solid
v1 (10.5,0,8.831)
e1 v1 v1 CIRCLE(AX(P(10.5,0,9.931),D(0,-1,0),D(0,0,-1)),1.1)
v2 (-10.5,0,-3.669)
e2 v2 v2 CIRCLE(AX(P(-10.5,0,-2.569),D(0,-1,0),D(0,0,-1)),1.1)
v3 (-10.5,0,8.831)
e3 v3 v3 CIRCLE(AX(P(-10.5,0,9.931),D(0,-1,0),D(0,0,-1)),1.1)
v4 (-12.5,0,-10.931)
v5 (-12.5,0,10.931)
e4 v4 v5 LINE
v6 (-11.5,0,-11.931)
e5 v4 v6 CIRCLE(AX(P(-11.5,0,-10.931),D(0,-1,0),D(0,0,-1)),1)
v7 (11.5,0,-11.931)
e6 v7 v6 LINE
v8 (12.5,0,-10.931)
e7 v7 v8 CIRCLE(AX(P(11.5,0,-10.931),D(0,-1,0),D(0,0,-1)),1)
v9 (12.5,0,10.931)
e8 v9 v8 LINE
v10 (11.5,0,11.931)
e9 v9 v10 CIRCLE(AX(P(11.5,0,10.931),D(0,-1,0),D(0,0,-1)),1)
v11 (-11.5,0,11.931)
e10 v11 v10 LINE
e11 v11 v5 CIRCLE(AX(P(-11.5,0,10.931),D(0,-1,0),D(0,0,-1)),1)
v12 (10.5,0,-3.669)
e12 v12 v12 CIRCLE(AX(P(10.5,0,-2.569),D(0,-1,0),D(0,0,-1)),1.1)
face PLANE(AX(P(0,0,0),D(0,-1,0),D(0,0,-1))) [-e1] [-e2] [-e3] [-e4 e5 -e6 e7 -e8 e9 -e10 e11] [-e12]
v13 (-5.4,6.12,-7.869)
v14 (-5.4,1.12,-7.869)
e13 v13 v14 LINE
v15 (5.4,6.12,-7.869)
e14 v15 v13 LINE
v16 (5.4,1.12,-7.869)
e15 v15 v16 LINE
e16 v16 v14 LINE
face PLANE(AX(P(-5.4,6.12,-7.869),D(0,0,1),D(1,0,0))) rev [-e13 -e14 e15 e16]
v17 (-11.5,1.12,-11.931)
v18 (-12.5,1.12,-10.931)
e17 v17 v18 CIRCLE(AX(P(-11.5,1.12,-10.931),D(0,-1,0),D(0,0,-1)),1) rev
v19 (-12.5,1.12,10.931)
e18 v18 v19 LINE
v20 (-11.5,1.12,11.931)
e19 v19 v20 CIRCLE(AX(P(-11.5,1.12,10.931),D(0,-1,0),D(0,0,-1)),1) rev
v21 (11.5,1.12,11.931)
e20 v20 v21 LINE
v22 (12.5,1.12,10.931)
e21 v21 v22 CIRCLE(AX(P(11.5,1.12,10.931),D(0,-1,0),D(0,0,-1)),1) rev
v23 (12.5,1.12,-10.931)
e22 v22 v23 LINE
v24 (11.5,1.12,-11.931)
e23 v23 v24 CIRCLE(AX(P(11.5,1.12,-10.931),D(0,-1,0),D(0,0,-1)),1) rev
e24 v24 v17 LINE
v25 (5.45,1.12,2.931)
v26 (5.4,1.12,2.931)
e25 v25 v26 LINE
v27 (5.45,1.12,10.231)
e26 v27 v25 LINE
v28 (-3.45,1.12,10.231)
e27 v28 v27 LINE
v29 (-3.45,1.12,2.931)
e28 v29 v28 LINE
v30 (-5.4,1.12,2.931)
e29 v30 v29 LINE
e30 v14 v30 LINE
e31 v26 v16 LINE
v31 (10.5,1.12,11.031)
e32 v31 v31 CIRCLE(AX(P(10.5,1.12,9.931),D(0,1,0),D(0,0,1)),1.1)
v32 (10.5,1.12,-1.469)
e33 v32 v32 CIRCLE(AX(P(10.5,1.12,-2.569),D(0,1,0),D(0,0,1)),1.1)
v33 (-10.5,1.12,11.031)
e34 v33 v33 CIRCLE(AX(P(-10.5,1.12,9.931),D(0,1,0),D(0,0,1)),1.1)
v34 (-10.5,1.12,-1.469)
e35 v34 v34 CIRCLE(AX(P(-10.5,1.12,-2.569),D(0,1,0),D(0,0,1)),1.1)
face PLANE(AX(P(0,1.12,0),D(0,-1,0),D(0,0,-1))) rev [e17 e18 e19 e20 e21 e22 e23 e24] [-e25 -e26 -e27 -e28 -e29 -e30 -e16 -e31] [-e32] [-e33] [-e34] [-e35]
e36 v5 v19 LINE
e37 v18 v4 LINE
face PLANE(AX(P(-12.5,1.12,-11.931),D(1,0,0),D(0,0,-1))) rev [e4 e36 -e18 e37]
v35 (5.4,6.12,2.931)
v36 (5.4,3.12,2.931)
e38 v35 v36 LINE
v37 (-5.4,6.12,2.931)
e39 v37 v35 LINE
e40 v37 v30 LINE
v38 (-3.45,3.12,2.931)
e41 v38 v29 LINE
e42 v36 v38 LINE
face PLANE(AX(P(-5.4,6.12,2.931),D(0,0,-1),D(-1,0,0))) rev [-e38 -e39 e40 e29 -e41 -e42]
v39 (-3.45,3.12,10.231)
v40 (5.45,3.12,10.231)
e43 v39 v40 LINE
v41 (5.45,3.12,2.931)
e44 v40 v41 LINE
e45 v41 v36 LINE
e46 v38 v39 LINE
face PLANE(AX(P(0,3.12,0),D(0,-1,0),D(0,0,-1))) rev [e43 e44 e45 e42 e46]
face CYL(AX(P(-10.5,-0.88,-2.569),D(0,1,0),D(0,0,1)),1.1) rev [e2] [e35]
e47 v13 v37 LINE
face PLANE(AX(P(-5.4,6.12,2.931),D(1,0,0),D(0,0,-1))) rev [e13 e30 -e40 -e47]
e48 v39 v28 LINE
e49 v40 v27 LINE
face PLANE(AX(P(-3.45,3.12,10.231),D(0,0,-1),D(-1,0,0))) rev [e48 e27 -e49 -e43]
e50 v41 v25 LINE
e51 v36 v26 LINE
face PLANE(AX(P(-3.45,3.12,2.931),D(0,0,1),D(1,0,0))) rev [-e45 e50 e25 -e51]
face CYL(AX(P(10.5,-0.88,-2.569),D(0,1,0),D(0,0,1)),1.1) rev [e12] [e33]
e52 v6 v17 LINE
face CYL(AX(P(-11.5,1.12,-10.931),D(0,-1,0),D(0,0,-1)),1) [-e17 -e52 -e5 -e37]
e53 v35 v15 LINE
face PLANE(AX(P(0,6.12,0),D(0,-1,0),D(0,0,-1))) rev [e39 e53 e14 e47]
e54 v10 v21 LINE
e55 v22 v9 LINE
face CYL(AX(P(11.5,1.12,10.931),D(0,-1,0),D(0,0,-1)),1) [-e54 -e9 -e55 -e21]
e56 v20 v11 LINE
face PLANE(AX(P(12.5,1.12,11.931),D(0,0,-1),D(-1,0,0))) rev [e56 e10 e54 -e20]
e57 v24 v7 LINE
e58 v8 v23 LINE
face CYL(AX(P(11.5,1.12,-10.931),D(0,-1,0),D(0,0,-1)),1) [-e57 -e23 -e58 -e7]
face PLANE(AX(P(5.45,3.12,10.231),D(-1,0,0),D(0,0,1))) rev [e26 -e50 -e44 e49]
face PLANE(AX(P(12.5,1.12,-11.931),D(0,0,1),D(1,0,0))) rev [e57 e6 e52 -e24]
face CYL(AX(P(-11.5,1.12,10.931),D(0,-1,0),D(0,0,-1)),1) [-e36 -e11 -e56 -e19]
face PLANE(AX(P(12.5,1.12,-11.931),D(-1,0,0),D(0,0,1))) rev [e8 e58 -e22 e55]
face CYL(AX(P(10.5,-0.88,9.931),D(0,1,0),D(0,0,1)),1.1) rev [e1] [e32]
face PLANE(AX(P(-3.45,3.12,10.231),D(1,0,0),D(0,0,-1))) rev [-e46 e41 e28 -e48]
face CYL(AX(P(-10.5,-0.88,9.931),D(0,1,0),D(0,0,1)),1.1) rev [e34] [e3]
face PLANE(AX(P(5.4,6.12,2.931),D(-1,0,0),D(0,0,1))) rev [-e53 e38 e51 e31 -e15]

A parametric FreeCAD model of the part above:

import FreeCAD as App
import Part
import Sketcher

V = App.Vector
Q = App.Units.Quantity


def edges_at(feature, points):
    """Names of the edges that pass closest to the given points."""
    edges = feature.Shape.Edges
    near = lambda p: min(range(len(edges)), key=lambda i: edges[i].distToShape(Part.Vertex(*p))[0])
    return sorted({f"Edge{near(p) + 1}" for p in points})


def add_polygon(sketch, points):
    """Adds a closed chain of lines whose ends are joined by coincident constraints."""
    first, n = sketch.GeometryCount, len(points)
    for a, b in zip(points, points[1:] + points[:1]):
        sketch.addGeometry(Part.LineSegment(App.Vector(*a, 0), App.Vector(*b, 0)), False)
    for i in range(n):
        sketch.addConstraint(Sketcher.Constraint("Coincident", first + i, 2, first + (i + 1) % n, 1))

doc = App.newDocument("Part")
body = doc.addObject("PartDesign::Body", "Body")

# Sketch on XZ plane
sketch1 = body.newObject("Sketcher::SketchObject", "Sketch")
sketch1.AttachmentSupport = (doc.getObject("XZ_Plane"), [""])
sketch1.MapMode = "FlatFace"
add_polygon(sketch1, [(-12, -12), (-12, 12), (12, 12), (12, -12)])  # lines 0-3
sketch1.addConstraint([
    Sketcher.Constraint("Vertical", 0),
    Sketcher.Constraint("Horizontal", 1),
    Sketcher.Constraint("Vertical", 2),
    Sketcher.Constraint("Horizontal", 3),
    Sketcher.Constraint("Symmetric", 0, 2, 2, 2, -1, 1),
    Sketcher.Constraint("DistanceX", 1, 1, 1, 2, Q("25 mm")),
    Sketcher.Constraint("DistanceY", 0, 1, 0, 2, Q("23.862 mm")),
])
pad1 = body.newObject("PartDesign::Pad", "Pad")
pad1.Profile = sketch1
pad1.Length = 1.12
pad1.Reversed = True
doc.recompute()

fillet = body.newObject("PartDesign::Fillet", "Fillet")
fillet.Base = (pad1, edges_at(pad1, [
    (-12.5, 0.56, -11.931),
    (12.5, 0.56, -11.931),
    (12.5, 0.56, 11.931),
    (-12.5, 0.56, 11.931),
]))
fillet.Radius = 1

# Sketch on XZ plane
sketch2 = body.newObject("Sketcher::SketchObject", "Sketch001")
sketch2.AttachmentSupport = (doc.getObject("XZ_Plane"), [""])
sketch2.MapMode = "FlatFace"
sketch2.AttachmentOffset = App.Placement(V(0, 0, -1.12), App.Rotation())
sketch2.addGeometry([
    Part.Circle(V(-10.5, -2.6, 0), V(0, 0, 1), 1.1),
    Part.Circle(V(10.5, -2.6, 0), V(0, 0, 1), 1.1),
    Part.Circle(V(-10.5, 9.9, 0), V(0, 0, 1), 1.1),
    Part.Circle(V(10.5, 9.9, 0), V(0, 0, 1), 1.1),
], False)
sketch2.addConstraint([
    Sketcher.Constraint("Equal", 0, 1),
    Sketcher.Constraint("Equal", 1, 2),
    Sketcher.Constraint("Equal", 2, 3),
    Sketcher.Constraint("Symmetric", 0, 3, 1, 3, -2),
    Sketcher.Constraint("Symmetric", 2, 3, 3, 3, -2),
    Sketcher.Constraint("Vertical", 0, 3, 2, 3),
    Sketcher.Constraint("Diameter", 0, Q("2.2 mm")),
    Sketcher.Constraint("DistanceX", 0, 3, 1, 3, Q("21 mm")),
    Sketcher.Constraint("DistanceY", 0, 3, 2, 3, Q("12.5 mm")),
    Sketcher.Constraint("DistanceY", 0, 3, -1, 1, Q("2.569 mm")),
])
pocket1 = body.newObject("PartDesign::Pocket", "Pocket")
pocket1.Profile = sketch2
pocket1.Length = 2
pocket1.Reversed = True

# Sketch on XZ plane
sketch3 = body.newObject("Sketcher::SketchObject", "Sketch002")
sketch3.AttachmentSupport = (doc.getObject("XZ_Plane"), [""])
sketch3.MapMode = "FlatFace"
sketch3.AttachmentOffset = App.Placement(V(0, 0, -1.12), App.Rotation())
add_polygon(sketch3, [(-5, -8), (-5, 3), (5, 3), (5, -8)])  # lines 0-3
sketch3.addConstraint([
    Sketcher.Constraint("Vertical", 0),
    Sketcher.Constraint("Horizontal", 1),
    Sketcher.Constraint("Vertical", 2),
    Sketcher.Constraint("Horizontal", 3),
    Sketcher.Constraint("Equal", 3, 0),
    Sketcher.Constraint("DistanceX", 1, 1, 1, 2, Q("10.8 mm")),
    Sketcher.Constraint("DistanceX", 0, 2, -1, 1, Q("5.4 mm")),
    Sketcher.Constraint("DistanceY", -1, 1, 0, 2, Q("2.931 mm")),
])
pad2 = body.newObject("PartDesign::Pad", "Pad001")
pad2.Profile = sketch3
pad2.Length = 5
pad2.Reversed = True

# Sketch on XZ plane
sketch4 = body.newObject("Sketcher::SketchObject", "Sketch003")
sketch4.AttachmentSupport = (doc.getObject("XZ_Plane"), [""])
sketch4.MapMode = "FlatFace"
sketch4.AttachmentOffset = App.Placement(V(0, 0, -1.12), App.Rotation())
add_polygon(sketch4, [(-3, 3), (-3, 10), (5, 10), (5, 3)])  # lines 0-3
sketch4.addConstraint([
    Sketcher.Constraint("Vertical", 0),
    Sketcher.Constraint("Horizontal", 1),
    Sketcher.Constraint("Vertical", 2),
    Sketcher.Constraint("Horizontal", 3),
    Sketcher.Constraint("DistanceX", 1, 1, 1, 2, Q("8.9 mm")),
    Sketcher.Constraint("DistanceY", 0, 1, 0, 2, Q("7.3 mm")),
    Sketcher.Constraint("DistanceX", 0, 2, -1, 1, Q("3.45 mm")),
    Sketcher.Constraint("DistanceY", -1, 1, 0, 2, Q("10.231 mm")),
])
pad3 = body.newObject("PartDesign::Pad", "Pad002")
pad3.Profile = sketch4
pad3.Length = 2
pad3.Reversed = True

doc.recompute()
